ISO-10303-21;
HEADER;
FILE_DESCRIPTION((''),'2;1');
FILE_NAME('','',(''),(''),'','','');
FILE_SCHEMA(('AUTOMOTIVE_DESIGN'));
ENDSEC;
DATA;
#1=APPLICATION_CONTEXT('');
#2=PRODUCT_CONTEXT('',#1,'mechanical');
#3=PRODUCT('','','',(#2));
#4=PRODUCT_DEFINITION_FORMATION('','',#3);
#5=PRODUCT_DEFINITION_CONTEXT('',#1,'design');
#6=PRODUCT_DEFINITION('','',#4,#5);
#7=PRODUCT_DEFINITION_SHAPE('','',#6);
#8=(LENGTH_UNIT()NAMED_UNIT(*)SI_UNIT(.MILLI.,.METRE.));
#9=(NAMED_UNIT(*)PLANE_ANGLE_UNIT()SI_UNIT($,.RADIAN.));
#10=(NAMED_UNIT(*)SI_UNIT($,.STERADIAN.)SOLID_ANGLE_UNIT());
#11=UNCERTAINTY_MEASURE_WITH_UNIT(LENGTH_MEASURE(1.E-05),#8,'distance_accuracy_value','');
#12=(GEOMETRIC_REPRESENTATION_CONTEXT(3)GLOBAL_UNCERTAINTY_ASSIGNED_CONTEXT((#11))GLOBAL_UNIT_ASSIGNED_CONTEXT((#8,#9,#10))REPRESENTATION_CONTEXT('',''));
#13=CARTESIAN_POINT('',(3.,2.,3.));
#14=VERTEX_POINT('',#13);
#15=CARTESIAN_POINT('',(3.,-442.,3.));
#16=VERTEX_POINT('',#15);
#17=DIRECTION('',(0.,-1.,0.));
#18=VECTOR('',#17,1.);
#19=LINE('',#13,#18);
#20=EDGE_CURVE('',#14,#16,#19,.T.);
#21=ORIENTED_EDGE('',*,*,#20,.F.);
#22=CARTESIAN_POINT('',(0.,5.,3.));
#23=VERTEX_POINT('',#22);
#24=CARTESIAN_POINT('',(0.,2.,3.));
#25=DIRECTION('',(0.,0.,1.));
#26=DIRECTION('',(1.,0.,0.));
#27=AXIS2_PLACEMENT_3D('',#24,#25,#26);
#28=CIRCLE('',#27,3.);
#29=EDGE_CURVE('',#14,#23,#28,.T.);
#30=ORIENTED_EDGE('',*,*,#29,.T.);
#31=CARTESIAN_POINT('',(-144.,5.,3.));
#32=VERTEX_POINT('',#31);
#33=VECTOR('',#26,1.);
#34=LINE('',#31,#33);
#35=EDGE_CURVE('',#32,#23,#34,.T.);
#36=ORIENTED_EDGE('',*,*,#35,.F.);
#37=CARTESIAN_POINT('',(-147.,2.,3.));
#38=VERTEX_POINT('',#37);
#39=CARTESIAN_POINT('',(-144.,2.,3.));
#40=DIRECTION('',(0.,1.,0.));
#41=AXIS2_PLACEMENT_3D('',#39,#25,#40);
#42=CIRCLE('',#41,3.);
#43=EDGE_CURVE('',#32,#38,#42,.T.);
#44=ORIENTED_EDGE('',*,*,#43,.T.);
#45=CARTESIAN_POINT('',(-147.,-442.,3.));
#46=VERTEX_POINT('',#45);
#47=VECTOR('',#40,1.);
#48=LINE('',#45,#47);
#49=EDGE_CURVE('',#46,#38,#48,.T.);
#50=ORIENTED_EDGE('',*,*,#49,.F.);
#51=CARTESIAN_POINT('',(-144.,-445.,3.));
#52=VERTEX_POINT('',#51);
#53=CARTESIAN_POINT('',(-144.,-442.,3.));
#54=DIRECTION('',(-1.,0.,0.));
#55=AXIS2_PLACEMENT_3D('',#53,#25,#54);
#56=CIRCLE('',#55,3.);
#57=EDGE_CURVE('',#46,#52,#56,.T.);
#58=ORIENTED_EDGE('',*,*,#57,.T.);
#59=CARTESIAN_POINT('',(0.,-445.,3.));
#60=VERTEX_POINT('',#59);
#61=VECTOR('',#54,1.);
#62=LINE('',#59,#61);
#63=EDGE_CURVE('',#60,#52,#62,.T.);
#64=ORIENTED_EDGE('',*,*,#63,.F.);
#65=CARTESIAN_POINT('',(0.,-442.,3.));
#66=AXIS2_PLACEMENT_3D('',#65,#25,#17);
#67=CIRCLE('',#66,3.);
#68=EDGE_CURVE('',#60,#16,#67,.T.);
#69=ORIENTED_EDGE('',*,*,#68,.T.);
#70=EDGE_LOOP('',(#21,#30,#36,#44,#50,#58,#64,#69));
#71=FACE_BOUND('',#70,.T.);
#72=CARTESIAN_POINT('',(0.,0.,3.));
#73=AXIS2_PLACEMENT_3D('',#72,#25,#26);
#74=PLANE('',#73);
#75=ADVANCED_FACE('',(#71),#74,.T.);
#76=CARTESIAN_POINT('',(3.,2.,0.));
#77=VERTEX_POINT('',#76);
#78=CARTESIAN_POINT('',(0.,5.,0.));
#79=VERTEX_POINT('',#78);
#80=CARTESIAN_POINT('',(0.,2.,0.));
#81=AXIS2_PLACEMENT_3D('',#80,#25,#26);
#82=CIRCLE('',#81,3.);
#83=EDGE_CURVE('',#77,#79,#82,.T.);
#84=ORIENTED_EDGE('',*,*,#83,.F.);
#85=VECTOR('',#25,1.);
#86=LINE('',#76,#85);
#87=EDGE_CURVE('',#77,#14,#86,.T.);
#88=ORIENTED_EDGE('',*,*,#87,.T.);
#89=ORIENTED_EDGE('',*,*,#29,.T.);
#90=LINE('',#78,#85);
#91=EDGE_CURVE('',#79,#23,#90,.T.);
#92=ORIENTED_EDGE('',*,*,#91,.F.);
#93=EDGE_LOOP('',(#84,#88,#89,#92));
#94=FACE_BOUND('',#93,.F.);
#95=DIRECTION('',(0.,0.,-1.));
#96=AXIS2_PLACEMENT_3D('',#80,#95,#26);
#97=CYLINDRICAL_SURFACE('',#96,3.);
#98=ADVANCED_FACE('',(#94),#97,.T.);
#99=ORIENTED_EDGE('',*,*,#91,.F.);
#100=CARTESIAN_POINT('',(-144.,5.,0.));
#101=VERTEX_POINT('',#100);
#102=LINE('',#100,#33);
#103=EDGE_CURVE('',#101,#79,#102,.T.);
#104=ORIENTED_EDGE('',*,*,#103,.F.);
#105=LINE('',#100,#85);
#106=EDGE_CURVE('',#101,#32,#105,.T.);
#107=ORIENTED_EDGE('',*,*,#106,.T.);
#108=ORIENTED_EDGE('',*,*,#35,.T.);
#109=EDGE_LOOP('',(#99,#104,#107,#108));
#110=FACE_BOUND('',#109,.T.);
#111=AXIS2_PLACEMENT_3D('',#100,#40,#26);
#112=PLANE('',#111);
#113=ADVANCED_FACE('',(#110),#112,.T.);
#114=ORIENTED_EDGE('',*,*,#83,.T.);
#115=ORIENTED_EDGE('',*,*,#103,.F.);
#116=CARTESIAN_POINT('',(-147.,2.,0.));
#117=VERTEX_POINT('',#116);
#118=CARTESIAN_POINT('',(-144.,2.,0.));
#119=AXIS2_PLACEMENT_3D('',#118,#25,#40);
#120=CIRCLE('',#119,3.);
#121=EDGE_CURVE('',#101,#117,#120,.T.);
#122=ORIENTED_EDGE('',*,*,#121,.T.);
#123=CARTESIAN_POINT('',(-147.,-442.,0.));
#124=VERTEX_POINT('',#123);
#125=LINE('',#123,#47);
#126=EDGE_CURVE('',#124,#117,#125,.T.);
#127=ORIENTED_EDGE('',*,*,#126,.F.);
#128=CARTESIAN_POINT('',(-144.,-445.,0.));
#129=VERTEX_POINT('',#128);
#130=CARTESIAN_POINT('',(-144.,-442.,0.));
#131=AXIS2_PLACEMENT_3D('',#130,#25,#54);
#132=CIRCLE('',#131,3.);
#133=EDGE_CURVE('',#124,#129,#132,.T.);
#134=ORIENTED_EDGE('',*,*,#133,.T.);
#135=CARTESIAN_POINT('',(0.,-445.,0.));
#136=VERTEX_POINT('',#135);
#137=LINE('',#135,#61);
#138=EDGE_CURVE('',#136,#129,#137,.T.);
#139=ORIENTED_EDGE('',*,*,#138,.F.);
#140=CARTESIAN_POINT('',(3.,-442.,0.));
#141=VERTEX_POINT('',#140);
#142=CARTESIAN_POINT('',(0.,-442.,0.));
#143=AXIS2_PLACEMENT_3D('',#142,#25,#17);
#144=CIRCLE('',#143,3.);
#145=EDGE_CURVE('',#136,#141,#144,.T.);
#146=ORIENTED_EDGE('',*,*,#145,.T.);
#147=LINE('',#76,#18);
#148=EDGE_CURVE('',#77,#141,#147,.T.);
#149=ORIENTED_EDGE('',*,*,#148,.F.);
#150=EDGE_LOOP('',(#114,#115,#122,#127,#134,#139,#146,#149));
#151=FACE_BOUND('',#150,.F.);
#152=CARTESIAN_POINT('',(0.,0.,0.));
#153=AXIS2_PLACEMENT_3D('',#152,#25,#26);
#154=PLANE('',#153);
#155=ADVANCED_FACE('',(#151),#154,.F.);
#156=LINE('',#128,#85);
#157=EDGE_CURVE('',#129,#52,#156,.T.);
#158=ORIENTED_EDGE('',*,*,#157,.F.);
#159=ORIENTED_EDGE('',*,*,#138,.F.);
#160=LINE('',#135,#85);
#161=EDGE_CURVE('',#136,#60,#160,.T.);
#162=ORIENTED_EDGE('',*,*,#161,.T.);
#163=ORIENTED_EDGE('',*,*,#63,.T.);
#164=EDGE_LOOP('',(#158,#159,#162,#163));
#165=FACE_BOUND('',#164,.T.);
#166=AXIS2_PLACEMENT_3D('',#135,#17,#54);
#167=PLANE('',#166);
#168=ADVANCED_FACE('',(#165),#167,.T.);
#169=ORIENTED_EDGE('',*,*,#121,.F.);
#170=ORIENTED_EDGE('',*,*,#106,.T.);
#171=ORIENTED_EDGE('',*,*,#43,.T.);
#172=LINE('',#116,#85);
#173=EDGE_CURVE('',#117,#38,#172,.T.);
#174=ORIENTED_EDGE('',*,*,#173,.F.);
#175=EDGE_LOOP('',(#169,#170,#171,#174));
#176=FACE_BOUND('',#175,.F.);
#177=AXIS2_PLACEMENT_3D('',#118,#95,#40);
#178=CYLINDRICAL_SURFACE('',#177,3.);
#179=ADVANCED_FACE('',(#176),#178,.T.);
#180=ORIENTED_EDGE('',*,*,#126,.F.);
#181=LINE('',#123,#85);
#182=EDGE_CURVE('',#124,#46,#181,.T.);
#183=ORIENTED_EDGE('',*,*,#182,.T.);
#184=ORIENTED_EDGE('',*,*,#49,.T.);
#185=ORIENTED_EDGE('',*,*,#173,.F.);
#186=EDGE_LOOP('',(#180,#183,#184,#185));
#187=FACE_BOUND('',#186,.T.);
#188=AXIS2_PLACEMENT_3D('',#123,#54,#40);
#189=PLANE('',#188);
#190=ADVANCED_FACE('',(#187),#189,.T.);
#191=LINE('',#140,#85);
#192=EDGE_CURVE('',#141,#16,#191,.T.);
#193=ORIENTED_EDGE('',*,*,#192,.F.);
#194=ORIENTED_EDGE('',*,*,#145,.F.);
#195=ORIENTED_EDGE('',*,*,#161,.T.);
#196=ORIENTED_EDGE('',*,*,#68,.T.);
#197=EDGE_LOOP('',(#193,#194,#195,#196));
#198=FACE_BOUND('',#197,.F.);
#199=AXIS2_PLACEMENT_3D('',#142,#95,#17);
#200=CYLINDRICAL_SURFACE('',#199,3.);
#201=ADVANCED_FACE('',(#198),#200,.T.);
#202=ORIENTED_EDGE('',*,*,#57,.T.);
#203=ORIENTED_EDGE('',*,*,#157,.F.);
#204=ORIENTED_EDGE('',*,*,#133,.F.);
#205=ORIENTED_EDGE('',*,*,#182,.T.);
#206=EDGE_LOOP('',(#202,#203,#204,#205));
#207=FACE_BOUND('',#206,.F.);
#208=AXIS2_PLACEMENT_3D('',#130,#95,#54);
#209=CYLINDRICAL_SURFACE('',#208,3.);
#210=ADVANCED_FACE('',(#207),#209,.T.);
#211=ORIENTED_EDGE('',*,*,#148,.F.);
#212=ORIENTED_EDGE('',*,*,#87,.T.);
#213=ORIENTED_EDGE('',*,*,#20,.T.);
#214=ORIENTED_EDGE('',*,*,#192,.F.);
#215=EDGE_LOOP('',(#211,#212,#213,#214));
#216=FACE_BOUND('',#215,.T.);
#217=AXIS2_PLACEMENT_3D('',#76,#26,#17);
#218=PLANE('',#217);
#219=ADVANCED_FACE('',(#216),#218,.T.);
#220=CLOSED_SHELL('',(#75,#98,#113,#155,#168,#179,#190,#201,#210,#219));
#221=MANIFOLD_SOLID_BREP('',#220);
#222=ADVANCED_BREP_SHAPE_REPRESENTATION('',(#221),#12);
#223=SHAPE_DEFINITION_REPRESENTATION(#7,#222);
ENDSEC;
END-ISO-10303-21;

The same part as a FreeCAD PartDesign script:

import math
import FreeCAD as App
import Part
import Sketcher
from FreeCAD import Vector

doc = App.newDocument("Part")
params = doc.addObject("Spreadsheet::Sheet", "Params")
for row, (alias, value) in enumerate([
    ("sketch1_radius", "3 mm"),
    ("sketch1_width", "144 mm"),
    ("sketch1_height", "444 mm"),
    ("pad1_length", "3 mm"),
], start=1):
    params.set(f"A{row}", alias)
    params.set(f"B{row}", "=" + value)
    params.setAlias(f"B{row}", alias)

body = doc.addObject("PartDesign::Body", "Body")

sketch1 = body.newObject("Sketcher::SketchObject", "Sketch")
sketch1.AttachmentSupport = (doc.getObject("XY_Plane"), [""])
sketch1.MapMode = "FlatFace"
sketch1.addGeometry([
    Part.LineSegment(Vector(-144, -445, 0), Vector(0, -445, 0)),
    Part.ArcOfCircle(Part.Circle(Vector(0, -442, 0), Vector(0, 0, 1), 3), math.radians(-90), math.radians(0)),
    Part.LineSegment(Vector(3, -442, 0), Vector(3, 2, 0)),
    Part.ArcOfCircle(Part.Circle(Vector(0, 2, 0), Vector(0, 0, 1), 3), math.radians(0), math.radians(90)),
    Part.LineSegment(Vector(0, 5, 0), Vector(-144, 5, 0)),
    Part.ArcOfCircle(Part.Circle(Vector(-144, 2, 0), Vector(0, 0, 1), 3), math.radians(90), math.radians(180)),
    Part.LineSegment(Vector(-147, 2, 0), Vector(-147, -442, 0)),
    Part.ArcOfCircle(Part.Circle(Vector(-144, -442, 0), Vector(0, 0, 1), 3), math.radians(180), math.radians(270)),
], False)
sketch1.addConstraint([
    Sketcher.Constraint("Tangent", 0, 2, 1, 1),
    Sketcher.Constraint("Tangent", 1, 2, 2, 1),
    Sketcher.Constraint("Tangent", 2, 2, 3, 1),
    Sketcher.Constraint("Tangent", 3, 2, 4, 1),
    Sketcher.Constraint("Tangent", 4, 2, 5, 1),
    Sketcher.Constraint("Tangent", 5, 2, 6, 1),
    Sketcher.Constraint("Tangent", 6, 2, 7, 1),
    Sketcher.Constraint("Tangent", 7, 2, 0, 1),
    Sketcher.Constraint("Horizontal", 0),
    Sketcher.Constraint("Vertical", 2),
    Sketcher.Constraint("Horizontal", 4),
    Sketcher.Constraint("Vertical", 6),
    Sketcher.Constraint("Equal", 1, 3),
    Sketcher.Constraint("Equal", 3, 5),
    Sketcher.Constraint("Equal", 5, 7),
    Sketcher.Constraint("PointOnObject", 1, 3, -2),
    Sketcher.Constraint("Radius", 1, 3.0),
    Sketcher.Constraint("DistanceX", 0, 1, 0, 2, 144.0),
    Sketcher.Constraint("DistanceY", 2, 1, 2, 2, 444.0),
    Sketcher.Constraint("DistanceY", 1, 3, -1, 1, 442.0),
])
sketch1.setExpression("Constraints[16]", "Params.sketch1_radius")
sketch1.setExpression("Constraints[17]", "Params.sketch1_width")
sketch1.setExpression("Constraints[18]", "Params.sketch1_height")
pad1 = body.newObject("PartDesign::Pad", "Pad")
pad1.Profile = sketch1
pad1.setExpression("Length", "Params.pad1_length")

doc.recompute()
